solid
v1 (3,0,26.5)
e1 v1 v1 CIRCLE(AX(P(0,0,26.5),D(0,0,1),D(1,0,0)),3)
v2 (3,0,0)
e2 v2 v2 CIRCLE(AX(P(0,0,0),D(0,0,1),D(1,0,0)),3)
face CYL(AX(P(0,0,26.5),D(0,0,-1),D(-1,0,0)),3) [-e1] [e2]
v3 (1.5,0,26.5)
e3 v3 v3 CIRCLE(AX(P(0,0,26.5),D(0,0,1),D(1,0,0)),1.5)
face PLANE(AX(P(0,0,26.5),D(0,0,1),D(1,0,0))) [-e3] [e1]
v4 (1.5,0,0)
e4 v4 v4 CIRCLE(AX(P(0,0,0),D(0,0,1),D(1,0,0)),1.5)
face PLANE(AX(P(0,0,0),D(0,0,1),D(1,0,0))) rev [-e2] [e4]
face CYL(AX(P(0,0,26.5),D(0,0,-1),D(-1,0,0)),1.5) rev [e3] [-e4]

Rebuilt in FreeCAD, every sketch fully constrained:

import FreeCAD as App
import Part
import Sketcher
from FreeCAD import Vector
Q = App.Units.Quantity

doc = App.newDocument("Part")
params = doc.addObject("Spreadsheet::Sheet", "Params")
for row, (alias, value) in enumerate([
    ("sketch1_diameter", "6 mm"),
    ("sketch1_diameter2", "3 mm"),
    ("pad1_length", "26.5 mm"),
], start=1):
    params.set(f"A{row}", alias)
    params.set(f"B{row}", "=" + value)
    params.setAlias(f"B{row}", alias)

body = doc.addObject("PartDesign::Body", "Body")

sketch1 = doc.addObject("Sketcher::SketchObject", "Sketch")
body.addObject(sketch1)
sketch1.AttachmentSupport = (doc.XY_Plane, [""])
sketch1.MapMode = "FlatFace"
sketch1.addGeometry([
    Part.Circle(Vector(0, 0, 0), Vector(0, 0, 1), 3),
    Part.Circle(Vector(0, 0, 0), Vector(0, 0, 1), 1.5),
], False)
sketch1.addConstraint([
    Sketcher.Constraint("Coincident", 0, 3, -1, 1),
    Sketcher.Constraint("Coincident", 1, 3, -1, 1),
    Sketcher.Constraint("Diameter", 0, Q("6 mm")),
    Sketcher.Constraint("Diameter", 1, Q("3 mm")),
])
sketch1.setExpression("Constraints[2]", "Params.sketch1_diameter")
sketch1.setExpression("Constraints[3]", "Params.sketch1_diameter2")
pad1 = doc.addObject("PartDesign::Pad", "Pad")
body.addObject(pad1)
pad1.Profile = sketch1
pad1.setExpression("Length", "Params.pad1_length")

doc.recompute()
